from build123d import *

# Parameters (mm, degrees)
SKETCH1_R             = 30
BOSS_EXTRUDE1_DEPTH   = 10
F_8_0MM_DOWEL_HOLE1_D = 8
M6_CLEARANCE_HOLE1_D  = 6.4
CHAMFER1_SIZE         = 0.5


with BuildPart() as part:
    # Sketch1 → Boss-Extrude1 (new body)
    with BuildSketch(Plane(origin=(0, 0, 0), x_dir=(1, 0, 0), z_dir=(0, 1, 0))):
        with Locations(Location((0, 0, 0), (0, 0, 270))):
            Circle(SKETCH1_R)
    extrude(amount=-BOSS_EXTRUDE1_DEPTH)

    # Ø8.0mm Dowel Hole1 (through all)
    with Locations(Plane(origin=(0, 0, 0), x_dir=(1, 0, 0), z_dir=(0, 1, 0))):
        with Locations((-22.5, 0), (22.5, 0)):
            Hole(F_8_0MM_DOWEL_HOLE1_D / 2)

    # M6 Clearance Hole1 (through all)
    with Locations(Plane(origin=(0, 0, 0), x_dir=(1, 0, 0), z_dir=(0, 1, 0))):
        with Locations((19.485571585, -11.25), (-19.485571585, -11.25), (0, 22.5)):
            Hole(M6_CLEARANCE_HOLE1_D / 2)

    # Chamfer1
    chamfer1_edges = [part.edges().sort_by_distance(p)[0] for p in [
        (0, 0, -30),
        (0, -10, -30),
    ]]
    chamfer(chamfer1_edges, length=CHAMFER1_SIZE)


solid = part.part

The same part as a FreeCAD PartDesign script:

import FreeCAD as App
import Part
import Sketcher
from FreeCAD import Vector


def edges_at(feature, points):
    """Names of the edges that pass closest to the given points."""
    edges = feature.Shape.Edges
    near = lambda p: min(range(len(edges)), key=lambda i: edges[i].distToShape(Part.Vertex(*p))[0])
    return sorted({f"Edge{near(p) + 1}" for p in points})

doc = App.newDocument("Part")
body = doc.addObject("PartDesign::Body", "Body")

sketch1 = body.newObject("Sketcher::SketchObject", "Sketch")
sketch1.AttachmentSupport = (doc.getObject("XZ_Plane"), [""])
sketch1.MapMode = "FlatFace"
sketch1.addGeometry(Part.Circle(Vector(0, 0, 0), Vector(0, 0, 1), 30), False)
sketch1.addConstraint([
    Sketcher.Constraint("Coincident", 0, 3, -1, 1),
    Sketcher.Constraint("Diameter", 0, 60.0),
])
pad1 = body.newObject("PartDesign::Pad", "Pad")
pad1.Profile = sketch1
pad1.Length = 10

sketch2 = body.newObject("Sketcher::SketchObject", "Sketch001")
sketch2.AttachmentSupport = (doc.getObject("XZ_Plane"), [""])
sketch2.MapMode = "FlatFace"
sketch2.addGeometry([
    Part.Circle(Vector(-22.5, 0, 0), Vector(0, 0, 1), 4),
    Part.Circle(Vector(22.5, 0, 0), Vector(0, 0, 1), 4),
], False)
sketch2.addConstraint([
    Sketcher.Constraint("Equal", 0, 1),
    Sketcher.Constraint("Symmetric", 0, 3, 1, 3, -1, 1),
    Sketcher.Constraint("PointOnObject", 0, 3, -1),
    Sketcher.Constraint("Diameter", 0, 8.0),
    Sketcher.Constraint("DistanceX", 0, 3, 1, 3, 45.0),
])
doc.recompute()
hole = body.newObject("PartDesign::Hole", "Hole")
hole.Profile = sketch2
hole.ThreadType = "None"
hole.Diameter = 8
hole.DepthType = "ThroughAll"
hole.Reversed = True

sketch3 = body.newObject("Sketcher::SketchObject", "Sketch002")
sketch3.AttachmentSupport = (doc.getObject("XZ_Plane"), [""])
sketch3.MapMode = "FlatFace"
sketch3.addGeometry([
    Part.Circle(Vector(19.5, 11.2, 0), Vector(0, 0, 1), 3.2),
    Part.Circle(Vector(-19.5, 11.2, 0), Vector(0, 0, 1), 3.2),
    Part.Circle(Vector(0, -22.5, 0), Vector(0, 0, 1), 3.2),
], False)
sketch3.addConstraint([
    Sketcher.Constraint("Equal", 0, 1),
    Sketcher.Constraint("Equal", 1, 2),
    Sketcher.Constraint("Symmetric", 0, 3, 1, 3, -2),
    Sketcher.Constraint("PointOnObject", 2, 3, -2),
    Sketcher.Constraint("Diameter", 0, 6.4),
    Sketcher.Constraint("DistanceY", 2, 3, -1, 1, 22.5),
    Sketcher.Constraint("DistanceY", -1, 1, 0, 3, 11.25),
    Sketcher.Constraint("DistanceX", -1, 1, 0, 3, 19.485572),
])
doc.recompute()
hole2 = body.newObject("PartDesign::Hole", "Hole001")
hole2.Profile = sketch3
hole2.ThreadType = "None"
hole2.Diameter = 6.4
hole2.DepthType = "ThroughAll"
hole2.Reversed = True
doc.recompute()

chamfer = body.newObject("PartDesign::Chamfer", "Chamfer")
chamfer.Base = (hole2, edges_at(hole2, [(0, 0, -30), (0, -10, -30)]))
chamfer.Size = 0.5

doc.recompute()
